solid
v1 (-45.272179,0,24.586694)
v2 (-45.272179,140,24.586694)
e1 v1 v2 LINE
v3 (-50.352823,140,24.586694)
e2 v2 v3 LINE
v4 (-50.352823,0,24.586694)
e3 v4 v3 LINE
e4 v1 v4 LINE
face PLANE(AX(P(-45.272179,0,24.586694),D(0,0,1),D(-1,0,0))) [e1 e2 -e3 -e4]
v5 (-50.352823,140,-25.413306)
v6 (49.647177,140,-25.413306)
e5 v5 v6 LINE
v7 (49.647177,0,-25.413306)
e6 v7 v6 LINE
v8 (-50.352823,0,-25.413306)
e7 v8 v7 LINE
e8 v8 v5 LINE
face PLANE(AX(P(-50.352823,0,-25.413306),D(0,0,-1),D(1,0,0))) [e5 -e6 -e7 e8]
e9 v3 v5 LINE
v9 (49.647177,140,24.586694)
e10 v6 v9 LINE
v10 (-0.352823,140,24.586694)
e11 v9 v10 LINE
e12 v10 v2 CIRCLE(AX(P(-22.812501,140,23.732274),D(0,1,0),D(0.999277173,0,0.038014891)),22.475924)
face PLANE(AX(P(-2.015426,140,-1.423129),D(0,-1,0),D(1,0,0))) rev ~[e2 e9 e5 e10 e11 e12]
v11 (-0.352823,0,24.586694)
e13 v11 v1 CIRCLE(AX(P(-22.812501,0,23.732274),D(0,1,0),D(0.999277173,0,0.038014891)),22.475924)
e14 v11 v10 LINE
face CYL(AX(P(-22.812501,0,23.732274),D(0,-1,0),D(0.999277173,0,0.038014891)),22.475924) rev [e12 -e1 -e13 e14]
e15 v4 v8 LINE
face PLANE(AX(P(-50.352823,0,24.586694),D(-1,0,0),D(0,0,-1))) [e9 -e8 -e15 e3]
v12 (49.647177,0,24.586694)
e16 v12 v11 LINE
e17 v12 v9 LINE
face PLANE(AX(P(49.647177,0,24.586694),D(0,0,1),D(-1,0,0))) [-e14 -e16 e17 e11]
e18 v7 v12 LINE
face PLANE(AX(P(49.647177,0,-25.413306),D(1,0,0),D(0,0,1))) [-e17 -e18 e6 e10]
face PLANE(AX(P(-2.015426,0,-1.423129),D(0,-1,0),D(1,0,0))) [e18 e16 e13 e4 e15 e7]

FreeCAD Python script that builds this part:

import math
import FreeCAD as App
import Part
import Sketcher
from FreeCAD import Vector
Q = App.Units.Quantity

doc = App.newDocument("Part")
body = doc.addObject("PartDesign::Body", "Body")

sketch1 = doc.addObject("Sketcher::SketchObject", "Sketch")
body.addObject(sketch1)
sketch1.AttachmentSupport = (doc.XZ_Plane, [""])
sketch1.MapMode = "FlatFace"
sketch1.addGeometry(Part.LineSegment(Vector(-45.272179, 24.586694, 0), Vector(-50.352823, 24.586694, 0)), False)
sketch1.addGeometry(Part.LineSegment(Vector(-50.352823, 24.586694, 0), Vector(-50.352823, -25.413306, 0)), False)
sketch1.addGeometry(Part.LineSegment(Vector(-50.352823, -25.413306, 0), Vector(49.647177, -25.413306, 0)), False)
sketch1.addGeometry(Part.LineSegment(Vector(49.647177, -25.413306, 0), Vector(49.647177, 24.586694, 0)), False)
sketch1.addGeometry(Part.LineSegment(Vector(49.647177, 24.586694, 0), Vector(-0.352823, 24.586694, 0)), False)
sketch1.addGeometry(Part.ArcOfCircle(Part.Circle(Vector(-22.812501, 23.732274, 0), Vector(0, 0, 1), 22.475924), math.radians(177.821382), math.radians(362.178618)), False)
sketch1.addConstraint(Sketcher.Constraint("Coincident", 0, 2, 1, 1))
sketch1.addConstraint(Sketcher.Constraint("Coincident", 1, 2, 2, 1))
sketch1.addConstraint(Sketcher.Constraint("Coincident", 2, 2, 3, 1))
sketch1.addConstraint(Sketcher.Constraint("Coincident", 3, 2, 4, 1))
sketch1.addConstraint(Sketcher.Constraint("Coincident", 4, 2, 5, 2))
sketch1.addConstraint(Sketcher.Constraint("Coincident", 5, 1, 0, 1))
sketch1.addConstraint(Sketcher.Constraint("Horizontal", 0))
sketch1.addConstraint(Sketcher.Constraint("Vertical", 1))
sketch1.addConstraint(Sketcher.Constraint("Horizontal", 2))
sketch1.addConstraint(Sketcher.Constraint("Vertical", 3))
sketch1.addConstraint(Sketcher.Constraint("Horizontal", 4))
sketch1.addConstraint(Sketcher.Constraint("Horizontal", 0, 2, 3, 2))
sketch1.addConstraint(Sketcher.Constraint("Equal", 4, 1))
sketch1.addConstraint(Sketcher.Constraint("DistanceX", 2, 1, 2, 2, Q("100 mm")))
sketch1.addConstraint(Sketcher.Constraint("DistanceX", 4, 2, 4, 1, Q("50 mm")))
sketch1.addConstraint(Sketcher.Constraint("Radius", 5, Q("22.475924 mm")))
sketch1.addConstraint(Sketcher.Constraint("DistanceX", 5, 3, -1, 1, Q("22.812501 mm")))
sketch1.addConstraint(Sketcher.Constraint("DistanceX", 0, 2, 0, 1, Q("5.080644 mm")))
sketch1.addConstraint(Sketcher.Constraint("DistanceY", -1, 1, 5, 3, Q("23.732274 mm")))
pad1 = doc.addObject("PartDesign::Pad", "Pad")
body.addObject(pad1)
pad1.Profile = sketch1
pad1.Length = 140
pad1.Reversed = True

doc.recompute()
